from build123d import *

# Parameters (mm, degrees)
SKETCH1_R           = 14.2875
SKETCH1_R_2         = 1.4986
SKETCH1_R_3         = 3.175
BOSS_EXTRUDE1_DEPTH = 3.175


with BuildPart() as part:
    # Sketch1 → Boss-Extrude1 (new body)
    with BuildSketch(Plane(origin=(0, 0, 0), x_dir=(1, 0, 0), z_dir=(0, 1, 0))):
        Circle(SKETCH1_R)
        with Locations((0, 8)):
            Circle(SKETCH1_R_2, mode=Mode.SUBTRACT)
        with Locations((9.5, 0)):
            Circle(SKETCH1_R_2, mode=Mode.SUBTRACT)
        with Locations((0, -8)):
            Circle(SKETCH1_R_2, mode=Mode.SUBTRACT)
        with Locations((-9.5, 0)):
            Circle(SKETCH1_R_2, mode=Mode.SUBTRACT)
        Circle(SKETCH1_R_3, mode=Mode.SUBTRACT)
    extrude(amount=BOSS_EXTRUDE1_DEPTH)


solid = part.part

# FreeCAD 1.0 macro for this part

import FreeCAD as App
import Part
import Sketcher
Q = App.Units.Quantity

doc = App.newDocument("Part")
params = doc.addObject("Spreadsheet::Sheet", "Params")
for row, (alias, value) in enumerate([
    ("sketch1_diameter", "0.25 in"),
    ("sketch1_diameter2", "1.125 in"),
    ("sketch1_diameter3", "0.118 in"),
    ("pad1_length", "0.125 in"),
], start=1):
    params.set(f"A{row}", alias)
    params.set(f"B{row}", "=" + value)
    params.setAlias(f"B{row}", alias)

body = doc.addObject("PartDesign::Body", "Body")

# Sketch on XZ plane
sketch1 = doc.addObject("Sketcher::SketchObject", "Sketch")
body.addObject(sketch1)
sketch1.AttachmentSupport = (doc.XZ_Plane, [""])
sketch1.MapMode = "FlatFace"
sketch1.addGeometry([
    Part.Circle(App.Vector(0, 0, 0), App.Vector(0, 0, 1), 14.3),  # 0
    Part.Circle(App.Vector(0, 8, 0), App.Vector(0, 0, 1), 1.5),  # 1
    Part.Circle(App.Vector(-9.5, 0, 0), App.Vector(0, 0, 1), 1.5),  # 2
    Part.Circle(App.Vector(0, 0, 0), App.Vector(0, 0, 1), 3.2),  # 3
    Part.Circle(App.Vector(9.5, 0, 0), App.Vector(0, 0, 1), 1.5),  # 4
    Part.Circle(App.Vector(0, -8, 0), App.Vector(0, 0, 1), 1.5),  # 5
], False)
sketch1.addConstraint([
    Sketcher.Constraint("Coincident", 0, 3, -1, 1),
    Sketcher.Constraint("Coincident", 3, 3, -1, 1),
    Sketcher.Constraint("Equal", 1, 2),
    Sketcher.Constraint("Equal", 2, 4),
    Sketcher.Constraint("Equal", 4, 5),
    Sketcher.Constraint("Symmetric", 2, 3, 4, 3, -1, 1),
    Sketcher.Constraint("Symmetric", 1, 3, 5, 3, -1, 1),
    Sketcher.Constraint("PointOnObject", 1, 3, -2),
    Sketcher.Constraint("PointOnObject", 2, 3, -1),
    Sketcher.Constraint("Diameter", 3, Q("0.25 in")),
    Sketcher.Constraint("Diameter", 0, Q("1.125 in")),
    Sketcher.Constraint("Diameter", 1, Q("0.118 in")),
    Sketcher.Constraint("DistanceY", -1, 1, 1, 3, 8.0),
    Sketcher.Constraint("DistanceX", 2, 3, -1, 1, 9.5),
])
sketch1.setExpression("Constraints[9]", "Params.sketch1_diameter")
sketch1.setExpression("Constraints[10]", "Params.sketch1_diameter2")
sketch1.setExpression("Constraints[11]", "Params.sketch1_diameter3")
pad1 = doc.addObject("PartDesign::Pad", "Pad")
body.addObject(pad1)
pad1.Profile = sketch1
pad1.setExpression("Length", "Params.pad1_length")
pad1.Reversed = True

doc.recompute()
